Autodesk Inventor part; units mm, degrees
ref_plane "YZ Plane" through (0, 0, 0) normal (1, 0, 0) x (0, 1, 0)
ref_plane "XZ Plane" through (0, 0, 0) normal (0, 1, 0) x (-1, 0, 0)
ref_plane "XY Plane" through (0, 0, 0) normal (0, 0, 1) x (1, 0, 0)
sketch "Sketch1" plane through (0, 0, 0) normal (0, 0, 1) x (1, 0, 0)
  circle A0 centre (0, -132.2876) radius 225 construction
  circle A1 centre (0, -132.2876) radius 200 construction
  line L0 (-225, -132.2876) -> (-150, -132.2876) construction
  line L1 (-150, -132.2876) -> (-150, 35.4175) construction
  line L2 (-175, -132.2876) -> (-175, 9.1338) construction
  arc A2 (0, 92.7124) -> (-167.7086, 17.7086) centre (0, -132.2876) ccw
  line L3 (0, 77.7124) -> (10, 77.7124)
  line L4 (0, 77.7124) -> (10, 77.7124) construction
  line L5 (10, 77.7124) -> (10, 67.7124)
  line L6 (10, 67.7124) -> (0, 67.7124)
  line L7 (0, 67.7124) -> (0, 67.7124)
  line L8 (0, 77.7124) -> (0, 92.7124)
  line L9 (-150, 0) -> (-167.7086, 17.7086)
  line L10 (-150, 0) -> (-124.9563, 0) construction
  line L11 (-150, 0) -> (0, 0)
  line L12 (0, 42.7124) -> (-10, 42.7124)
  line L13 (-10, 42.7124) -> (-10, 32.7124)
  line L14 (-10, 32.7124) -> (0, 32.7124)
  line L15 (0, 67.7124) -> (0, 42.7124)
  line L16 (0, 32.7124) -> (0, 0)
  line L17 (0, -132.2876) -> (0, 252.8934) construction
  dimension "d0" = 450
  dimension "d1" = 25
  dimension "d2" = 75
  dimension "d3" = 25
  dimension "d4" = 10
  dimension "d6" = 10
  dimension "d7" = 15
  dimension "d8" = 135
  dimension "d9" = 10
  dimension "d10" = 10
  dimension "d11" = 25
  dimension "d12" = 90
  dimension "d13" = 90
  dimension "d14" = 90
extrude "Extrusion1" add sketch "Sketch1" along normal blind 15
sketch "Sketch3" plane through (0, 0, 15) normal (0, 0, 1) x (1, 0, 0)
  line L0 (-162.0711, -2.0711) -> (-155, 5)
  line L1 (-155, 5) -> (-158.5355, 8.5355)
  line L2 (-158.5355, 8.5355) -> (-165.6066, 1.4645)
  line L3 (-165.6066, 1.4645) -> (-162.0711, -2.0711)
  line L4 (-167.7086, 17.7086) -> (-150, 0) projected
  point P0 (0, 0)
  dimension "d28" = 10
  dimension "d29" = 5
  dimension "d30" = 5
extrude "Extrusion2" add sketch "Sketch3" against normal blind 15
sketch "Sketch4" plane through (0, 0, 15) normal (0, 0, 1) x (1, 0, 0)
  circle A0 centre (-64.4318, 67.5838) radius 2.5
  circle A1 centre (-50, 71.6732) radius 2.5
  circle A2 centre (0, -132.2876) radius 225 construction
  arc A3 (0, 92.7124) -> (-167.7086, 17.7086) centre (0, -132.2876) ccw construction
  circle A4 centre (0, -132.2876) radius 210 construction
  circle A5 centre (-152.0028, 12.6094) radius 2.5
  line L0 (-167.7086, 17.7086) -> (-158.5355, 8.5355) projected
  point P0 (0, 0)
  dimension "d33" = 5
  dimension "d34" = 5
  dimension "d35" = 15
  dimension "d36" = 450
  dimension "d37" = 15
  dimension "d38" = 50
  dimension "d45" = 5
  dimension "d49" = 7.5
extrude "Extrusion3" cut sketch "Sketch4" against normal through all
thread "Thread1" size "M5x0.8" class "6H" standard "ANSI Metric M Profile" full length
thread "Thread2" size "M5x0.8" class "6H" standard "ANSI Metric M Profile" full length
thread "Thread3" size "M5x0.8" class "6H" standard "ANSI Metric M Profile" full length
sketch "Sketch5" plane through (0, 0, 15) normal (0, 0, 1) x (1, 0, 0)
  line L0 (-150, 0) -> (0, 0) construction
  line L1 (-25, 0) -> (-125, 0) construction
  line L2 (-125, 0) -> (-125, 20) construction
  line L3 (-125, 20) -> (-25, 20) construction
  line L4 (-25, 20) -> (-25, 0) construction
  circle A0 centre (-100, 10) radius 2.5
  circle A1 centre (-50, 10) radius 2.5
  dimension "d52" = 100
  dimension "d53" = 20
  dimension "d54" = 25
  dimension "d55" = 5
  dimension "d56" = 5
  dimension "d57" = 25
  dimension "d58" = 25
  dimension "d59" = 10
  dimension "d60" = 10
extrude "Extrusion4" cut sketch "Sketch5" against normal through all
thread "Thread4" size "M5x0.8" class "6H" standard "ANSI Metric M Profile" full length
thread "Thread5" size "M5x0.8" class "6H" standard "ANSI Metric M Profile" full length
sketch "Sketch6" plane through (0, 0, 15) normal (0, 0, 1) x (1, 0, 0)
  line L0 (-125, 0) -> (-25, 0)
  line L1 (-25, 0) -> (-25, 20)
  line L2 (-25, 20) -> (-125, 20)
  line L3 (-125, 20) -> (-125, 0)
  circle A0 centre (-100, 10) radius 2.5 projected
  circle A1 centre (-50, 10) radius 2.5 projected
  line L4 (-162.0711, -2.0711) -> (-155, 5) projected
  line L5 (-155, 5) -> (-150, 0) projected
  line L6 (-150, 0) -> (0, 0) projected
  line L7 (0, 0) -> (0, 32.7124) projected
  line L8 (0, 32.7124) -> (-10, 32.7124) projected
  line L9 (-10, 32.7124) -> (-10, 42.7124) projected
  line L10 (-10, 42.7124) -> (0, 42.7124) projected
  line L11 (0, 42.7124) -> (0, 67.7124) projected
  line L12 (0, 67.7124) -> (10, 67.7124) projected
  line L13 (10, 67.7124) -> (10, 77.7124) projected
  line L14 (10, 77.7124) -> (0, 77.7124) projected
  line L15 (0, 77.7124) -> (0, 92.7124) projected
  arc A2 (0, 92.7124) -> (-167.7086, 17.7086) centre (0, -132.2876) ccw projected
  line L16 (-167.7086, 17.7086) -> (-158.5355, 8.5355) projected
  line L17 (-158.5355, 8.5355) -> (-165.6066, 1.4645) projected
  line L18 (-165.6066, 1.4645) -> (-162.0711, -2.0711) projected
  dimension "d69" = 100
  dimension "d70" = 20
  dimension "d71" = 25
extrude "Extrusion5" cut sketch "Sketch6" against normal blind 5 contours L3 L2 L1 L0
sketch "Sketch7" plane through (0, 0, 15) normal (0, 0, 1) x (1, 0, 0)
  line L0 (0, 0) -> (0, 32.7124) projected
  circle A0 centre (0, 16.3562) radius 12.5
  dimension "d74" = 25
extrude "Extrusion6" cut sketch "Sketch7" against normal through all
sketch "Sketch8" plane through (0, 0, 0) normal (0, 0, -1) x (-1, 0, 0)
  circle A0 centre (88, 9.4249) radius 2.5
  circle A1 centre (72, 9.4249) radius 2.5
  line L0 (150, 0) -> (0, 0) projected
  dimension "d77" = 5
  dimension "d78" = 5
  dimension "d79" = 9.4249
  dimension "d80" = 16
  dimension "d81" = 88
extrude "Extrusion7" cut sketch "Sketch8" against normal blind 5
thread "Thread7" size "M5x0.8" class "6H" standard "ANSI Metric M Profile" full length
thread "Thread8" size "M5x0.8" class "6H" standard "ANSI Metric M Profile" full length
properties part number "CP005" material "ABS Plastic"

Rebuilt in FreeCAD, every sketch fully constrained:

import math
import FreeCAD as App
import Part
import Sketcher
Q = App.Units.Quantity

doc = App.newDocument("Part")
body = doc.addObject("PartDesign::Body", "Body")

sketch1 = body.newObject("Sketcher::SketchObject", "Sketch")
sketch1.AttachmentSupport = (doc.getObject("XY_Plane"), [""])
sketch1.MapMode = "FlatFace"
sketch1.addGeometry(Part.LineSegment(App.Vector(0, 78, 0), App.Vector(0, 93, 0)), False)
sketch1.addGeometry(Part.ArcOfCircle(Part.Circle(App.Vector(0, -132, 0), App.Vector(0, 0, 1), 225), math.radians(90), math.radians(138)), False)
sketch1.addGeometry(Part.LineSegment(App.Vector(-168, 18, 0), App.Vector(-150, 0, 0)), False)
sketch1.addGeometry(Part.LineSegment(App.Vector(-150, 0, 0), App.Vector(0, 0, 0)), False)
sketch1.addGeometry(Part.LineSegment(App.Vector(0, 0, 0), App.Vector(0, 33, 0)), False)
sketch1.addGeometry(Part.LineSegment(App.Vector(0, 33, 0), App.Vector(-10, 33, 0)), False)
sketch1.addGeometry(Part.LineSegment(App.Vector(-10, 33, 0), App.Vector(-10, 43, 0)), False)
sketch1.addGeometry(Part.LineSegment(App.Vector(-10, 43, 0), App.Vector(0, 43, 0)), False)
sketch1.addGeometry(Part.LineSegment(App.Vector(0, 43, 0), App.Vector(0, 68, 0)), False)
sketch1.addGeometry(Part.LineSegment(App.Vector(0, 68, 0), App.Vector(10, 68, 0)), False)
sketch1.addGeometry(Part.LineSegment(App.Vector(10, 68, 0), App.Vector(10, 78, 0)), False)
sketch1.addGeometry(Part.LineSegment(App.Vector(10, 78, 0), App.Vector(0, 78, 0)), False)
sketch1.addConstraint(Sketcher.Constraint("Coincident", 0, 2, 1, 1))
sketch1.addConstraint(Sketcher.Constraint("Coincident", 1, 2, 2, 1))
sketch1.addConstraint(Sketcher.Constraint("Coincident", 2, 2, 3, 1))
sketch1.addConstraint(Sketcher.Constraint("Coincident", 3, 2, 4, 1))
sketch1.addConstraint(Sketcher.Constraint("Coincident", 4, 2, 5, 1))
sketch1.addConstraint(Sketcher.Constraint("Coincident", 5, 2, 6, 1))
sketch1.addConstraint(Sketcher.Constraint("Coincident", 6, 2, 7, 1))
sketch1.addConstraint(Sketcher.Constraint("Coincident", 7, 2, 8, 1))
sketch1.addConstraint(Sketcher.Constraint("Coincident", 8, 2, 9, 1))
sketch1.addConstraint(Sketcher.Constraint("Coincident", 9, 2, 10, 1))
sketch1.addConstraint(Sketcher.Constraint("Coincident", 10, 2, 11, 1))
sketch1.addConstraint(Sketcher.Constraint("Coincident", 11, 2, 0, 1))
sketch1.addConstraint(Sketcher.Constraint("Vertical", 0))
sketch1.addConstraint(Sketcher.Constraint("Horizontal", 3))
sketch1.addConstraint(Sketcher.Constraint("Vertical", 4))
sketch1.addConstraint(Sketcher.Constraint("Horizontal", 5))
sketch1.addConstraint(Sketcher.Constraint("Vertical", 6))
sketch1.addConstraint(Sketcher.Constraint("Horizontal", 7))
sketch1.addConstraint(Sketcher.Constraint("Vertical", 8))
sketch1.addConstraint(Sketcher.Constraint("Horizontal", 9))
sketch1.addConstraint(Sketcher.Constraint("Vertical", 10))
sketch1.addConstraint(Sketcher.Constraint("Horizontal", 11))
sketch1.addConstraint(Sketcher.Constraint("Coincident", 3, 2, -1, 1))
sketch1.addConstraint(Sketcher.Constraint("PointOnObject", 1, 3, -2))
sketch1.addConstraint(Sketcher.Constraint("PointOnObject", 0, 2, -2))
sketch1.addConstraint(Sketcher.Constraint("PointOnObject", 7, 2, -2))
sketch1.addConstraint(Sketcher.Constraint("Equal", 7, 9))
sketch1.addConstraint(Sketcher.Constraint("Equal", 11, 6))
sketch1.addConstraint(Sketcher.Constraint("Equal", 6, 10))
sketch1.addConstraint(Sketcher.Constraint("Radius", 1, 225.0))
sketch1.addConstraint(Sketcher.Constraint("DistanceX", 5, 2, 5, 1, 10.0))
sketch1.addConstraint(Sketcher.Constraint("DistanceY", 0, 1, 0, 2, 15.0))
sketch1.addConstraint(Sketcher.Constraint("DistanceY", 8, 1, 8, 2, 25.0))
sketch1.addConstraint(Sketcher.Constraint("DistanceX", 3, 1, 3, 2, 150.0))
sketch1.addConstraint(Sketcher.Constraint("Angle", 2, Q("-45 deg")))
sketch1.addConstraint(Sketcher.Constraint("DistanceY", 4, 1, 4, 2, 32.7124))
pad1 = body.newObject("PartDesign::Pad", "Pad")
pad1.Profile = sketch1
pad1.Length = 15

sketch2 = body.newObject("Sketcher::SketchObject", "Sketch001")
sketch2.AttachmentSupport = (doc.getObject("XY_Plane"), [""])
sketch2.MapMode = "FlatFace"
sketch2.AttachmentOffset = App.Placement(App.Vector(0, 0, 15), App.Rotation())
sketch2.addGeometry(Part.LineSegment(App.Vector(-165.6, 1.5, 0), App.Vector(-162.1, -2.1, 0)), False)
sketch2.addGeometry(Part.LineSegment(App.Vector(-162.1, -2.1, 0), App.Vector(-155, 5, 0)), False)
sketch2.addGeometry(Part.LineSegment(App.Vector(-155, 5, 0), App.Vector(-158.5, 8.5, 0)), False)
sketch2.addGeometry(Part.LineSegment(App.Vector(-158.5, 8.5, 0), App.Vector(-165.6, 1.5, 0)), False)
sketch2.addConstraint(Sketcher.Constraint("Coincident", 0, 2, 1, 1))
sketch2.addConstraint(Sketcher.Constraint("Coincident", 1, 2, 2, 1))
sketch2.addConstraint(Sketcher.Constraint("Coincident", 2, 2, 3, 1))
sketch2.addConstraint(Sketcher.Constraint("Coincident", 3, 2, 0, 1))
sketch2.addConstraint(Sketcher.Constraint("Perpendicular", 0, 1))
sketch2.addConstraint(Sketcher.Constraint("Perpendicular", 1, 2))
sketch2.addConstraint(Sketcher.Constraint("Perpendicular", 2, 3))
sketch2.addConstraint(Sketcher.Constraint("Distance", 0, 5.0))
sketch2.addConstraint(Sketcher.Constraint("Distance", 1, 10.0))
sketch2.addConstraint(Sketcher.Constraint("DistanceY", -1, 1, 1, 2, 5.0))
sketch2.addConstraint(Sketcher.Constraint("Angle", 0, Q("-45.0008 deg")))
sketch2.addConstraint(Sketcher.Constraint("DistanceX", 1, 2, -1, 1, 155.0))
pad2 = body.newObject("PartDesign::Pad", "Pad001")
pad2.Profile = sketch2
pad2.Length = 15
pad2.Reversed = True

sketch3 = body.newObject("Sketcher::SketchObject", "Sketch002")
sketch3.AttachmentSupport = (doc.getObject("XY_Plane"), [""])
sketch3.MapMode = "FlatFace"
sketch3.AttachmentOffset = App.Placement(App.Vector(0, 0, 15), App.Rotation())
sketch3.addGeometry(Part.Circle(App.Vector(-64.4, 67.6, 0), App.Vector(0, 0, 1), 2.5), False)
sketch3.addGeometry(Part.Circle(App.Vector(-50, 71.7, 0), App.Vector(0, 0, 1), 2.5), False)
sketch3.addGeometry(Part.Circle(App.Vector(-152, 12.6, 0), App.Vector(0, 0, 1), 2.5), False)
sketch3.addConstraint(Sketcher.Constraint("Equal", 0, 1))
sketch3.addConstraint(Sketcher.Constraint("Equal", 1, 2))
sketch3.addConstraint(Sketcher.Constraint("Diameter", 0, 5.0))
sketch3.addConstraint(Sketcher.Constraint("DistanceX", 1, 3, -1, 1, 50.0))
sketch3.addConstraint(Sketcher.Constraint("DistanceX", 2, 3, 0, 3, 87.571))
sketch3.addConstraint(Sketcher.Constraint("DistanceX", 0, 3, -1, 1, 64.4318))
sketch3.addConstraint(Sketcher.Constraint("DistanceY", -1, 1, 0, 3, 67.5838))
sketch3.addConstraint(Sketcher.Constraint("DistanceY", -1, 1, 1, 3, 71.6732))
sketch3.addConstraint(Sketcher.Constraint("DistanceY", -1, 1, 2, 3, 12.6094))
pocket1 = body.newObject("PartDesign::Pocket", "Pocket")
pocket1.Profile = sketch3
pocket1.Type = "ThroughAll"

sketch4 = body.newObject("Sketcher::SketchObject", "Sketch003")
sketch4.AttachmentSupport = (doc.getObject("XY_Plane"), [""])
sketch4.MapMode = "FlatFace"
sketch4.AttachmentOffset = App.Placement(App.Vector(0, 0, 15), App.Rotation())
sketch4.addGeometry(Part.Circle(App.Vector(-100, 10, 0), App.Vector(0, 0, 1), 2.5), False)
sketch4.addGeometry(Part.Circle(App.Vector(-50, 10, 0), App.Vector(0, 0, 1), 2.5), False)
sketch4.addConstraint(Sketcher.Constraint("Equal", 0, 1))
sketch4.addConstraint(Sketcher.Constraint("Horizontal", 0, 3, 1, 3))
sketch4.addConstraint(Sketcher.Constraint("Diameter", 0, 5.0))
sketch4.addConstraint(Sketcher.Constraint("DistanceX", 0, 3, -1, 1, 100.0))
sketch4.addConstraint(Sketcher.Constraint("DistanceY", -1, 1, 0, 3, 10.0))
sketch4.addConstraint(Sketcher.Constraint("DistanceX", 1, 3, -1, 1, 50.0))
pocket2 = body.newObject("PartDesign::Pocket", "Pocket001")
pocket2.Profile = sketch4
pocket2.Type = "ThroughAll"

sketch5 = body.newObject("Sketcher::SketchObject", "Sketch004")
sketch5.AttachmentSupport = (doc.getObject("XY_Plane"), [""])
sketch5.MapMode = "FlatFace"
sketch5.AttachmentOffset = App.Placement(App.Vector(0, 0, 15), App.Rotation())
sketch5.addGeometry(Part.LineSegment(App.Vector(-125, 20, 0), App.Vector(-125, 0, 0)), False)
sketch5.addGeometry(Part.LineSegment(App.Vector(-125, 0, 0), App.Vector(-25, 0, 0)), False)
sketch5.addGeometry(Part.LineSegment(App.Vector(-25, 0, 0), App.Vector(-25, 20, 0)), False)
sketch5.addGeometry(Part.LineSegment(App.Vector(-25, 20, 0), App.Vector(-125, 20, 0)), False)
sketch5.addGeometry(Part.Circle(App.Vector(-100, 10, 0), App.Vector(0, 0, 1), 2.5), False)
sketch5.addGeometry(Part.Circle(App.Vector(-50, 10, 0), App.Vector(0, 0, 1), 2.5), False)
sketch5.addConstraint(Sketcher.Constraint("Coincident", 0, 2, 1, 1))
sketch5.addConstraint(Sketcher.Constraint("Coincident", 1, 2, 2, 1))
sketch5.addConstraint(Sketcher.Constraint("Coincident", 2, 2, 3, 1))
sketch5.addConstraint(Sketcher.Constraint("Coincident", 3, 2, 0, 1))
sketch5.addConstraint(Sketcher.Constraint("Vertical", 0))
sketch5.addConstraint(Sketcher.Constraint("Horizontal", 1))
sketch5.addConstraint(Sketcher.Constraint("Vertical", 2))
sketch5.addConstraint(Sketcher.Constraint("Horizontal", 3))
sketch5.addConstraint(Sketcher.Constraint("Equal", 4, 5))
sketch5.addConstraint(Sketcher.Constraint("PointOnObject", 0, 2, -1))
sketch5.addConstraint(Sketcher.Constraint("Horizontal", 4, 3, 5, 3))
sketch5.addConstraint(Sketcher.Constraint("DistanceX", 1, 1, 1, 2, 100.0))
sketch5.addConstraint(Sketcher.Constraint("DistanceY", 0, 2, 0, 1, 20.0))
sketch5.addConstraint(Sketcher.Constraint("Diameter", 4, 5.0))
sketch5.addConstraint(Sketcher.Constraint("DistanceX", 4, 3, -1, 1, 100.0))
sketch5.addConstraint(Sketcher.Constraint("DistanceX", 1, 2, -1, 1, 25.0))
sketch5.addConstraint(Sketcher.Constraint("DistanceX", 5, 3, 1, 2, 25.0))
sketch5.addConstraint(Sketcher.Constraint("DistanceY", -1, 1, 4, 3, 10.0))
pocket3 = body.newObject("PartDesign::Pocket", "Pocket002")
pocket3.Profile = sketch5
pocket3.Length = 5

sketch6 = body.newObject("Sketcher::SketchObject", "Sketch005")
sketch6.AttachmentSupport = (doc.getObject("XY_Plane"), [""])
sketch6.MapMode = "FlatFace"
sketch6.AttachmentOffset = App.Placement(App.Vector(0, 0, 15), App.Rotation())
sketch6.addGeometry(Part.Circle(App.Vector(0, 16, 0), App.Vector(0, 0, 1), 12), False)
sketch6.addConstraint(Sketcher.Constraint("PointOnObject", 0, 3, -2))
sketch6.addConstraint(Sketcher.Constraint("Diameter", 0, 25.0))
sketch6.addConstraint(Sketcher.Constraint("DistanceY", -1, 1, 0, 3, 16.3562))
pocket4 = body.newObject("PartDesign::Pocket", "Pocket003")
pocket4.Profile = sketch6
pocket4.Type = "ThroughAll"

sketch7 = body.newObject("Sketcher::SketchObject", "Sketch006")
sketch7.AttachmentSupport = (doc.getObject("XY_Plane"), [""])
sketch7.MapMode = "FlatFace"
sketch7.addGeometry(Part.Circle(App.Vector(-88, 9.4, 0), App.Vector(0, 0, 1), 2.5), False)
sketch7.addGeometry(Part.Circle(App.Vector(-72, 9.4, 0), App.Vector(0, 0, 1), 2.5), False)
sketch7.addConstraint(Sketcher.Constraint("Equal", 0, 1))
sketch7.addConstraint(Sketcher.Constraint("Horizontal", 0, 3, 1, 3))
sketch7.addConstraint(Sketcher.Constraint("Diameter", 0, 5.0))
sketch7.addConstraint(Sketcher.Constraint("DistanceX", 0, 3, -1, 1, 88.0))
sketch7.addConstraint(Sketcher.Constraint("DistanceX", 0, 3, 1, 3, 16.0))
sketch7.addConstraint(Sketcher.Constraint("DistanceY", -1, 1, 0, 3, 9.425))
pocket5 = body.newObject("PartDesign::Pocket", "Pocket004")
pocket5.Profile = sketch7
pocket5.Length = 5
pocket5.Reversed = True

doc.recompute()
